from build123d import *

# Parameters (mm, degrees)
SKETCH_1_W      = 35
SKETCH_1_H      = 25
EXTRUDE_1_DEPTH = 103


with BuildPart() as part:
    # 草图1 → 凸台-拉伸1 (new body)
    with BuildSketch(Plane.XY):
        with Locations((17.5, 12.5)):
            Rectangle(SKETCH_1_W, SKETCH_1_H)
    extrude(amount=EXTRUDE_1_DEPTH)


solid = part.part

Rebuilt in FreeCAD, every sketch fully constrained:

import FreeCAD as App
import Part
import Sketcher
from FreeCAD import Vector


def add_polygon(sketch, points):
    """Adds a closed chain of lines whose ends are joined by coincident constraints."""
    first, n = sketch.GeometryCount, len(points)
    for a, b in zip(points, points[1:] + points[:1]):
        sketch.addGeometry(Part.LineSegment(App.Vector(*a, 0), App.Vector(*b, 0)), False)
    for i in range(n):
        sketch.addConstraint(Sketcher.Constraint("Coincident", first + i, 2, first + (i + 1) % n, 1))

doc = App.newDocument("Part")
params = doc.addObject("Spreadsheet::Sheet", "Params")
for row, (alias, value) in enumerate([
    ("sketch1_width", "35 mm"),
    ("sketch1_height", "25 mm"),
    ("pad1_length", "103 mm"),
], start=1):
    params.set(f"A{row}", alias)
    params.set(f"B{row}", "=" + value)
    params.setAlias(f"B{row}", alias)

body = doc.addObject("PartDesign::Body", "Body")

# Sketch on XY plane
sketch1 = body.newObject("Sketcher::SketchObject", "Sketch")
sketch1.AttachmentSupport = (doc.getObject("XY_Plane"), [""])
sketch1.MapMode = "FlatFace"
add_polygon(sketch1, [(0, 25), (0, 0), (35, 0), (35, 25)])  # lines 0-3
sketch1.addConstraint([
    Sketcher.Constraint("Vertical", 0),
    Sketcher.Constraint("Horizontal", 1),
    Sketcher.Constraint("Vertical", 2),
    Sketcher.Constraint("Horizontal", 3),
    Sketcher.Constraint("Coincident", 0, 2, -1, 1),
    Sketcher.Constraint("DistanceX", 1, 1, 1, 2, 35.0),
    Sketcher.Constraint("DistanceY", 0, 2, 0, 1, 25.0),
])
sketch1.setExpression("Constraints[9]", "Params.sketch1_width")
sketch1.setExpression("Constraints[10]", "Params.sketch1_height")
pad1 = body.newObject("PartDesign::Pad", "Pad")
pad1.Profile = sketch1
pad1.setExpression("Length", "Params.pad1_length")

doc.recompute()
